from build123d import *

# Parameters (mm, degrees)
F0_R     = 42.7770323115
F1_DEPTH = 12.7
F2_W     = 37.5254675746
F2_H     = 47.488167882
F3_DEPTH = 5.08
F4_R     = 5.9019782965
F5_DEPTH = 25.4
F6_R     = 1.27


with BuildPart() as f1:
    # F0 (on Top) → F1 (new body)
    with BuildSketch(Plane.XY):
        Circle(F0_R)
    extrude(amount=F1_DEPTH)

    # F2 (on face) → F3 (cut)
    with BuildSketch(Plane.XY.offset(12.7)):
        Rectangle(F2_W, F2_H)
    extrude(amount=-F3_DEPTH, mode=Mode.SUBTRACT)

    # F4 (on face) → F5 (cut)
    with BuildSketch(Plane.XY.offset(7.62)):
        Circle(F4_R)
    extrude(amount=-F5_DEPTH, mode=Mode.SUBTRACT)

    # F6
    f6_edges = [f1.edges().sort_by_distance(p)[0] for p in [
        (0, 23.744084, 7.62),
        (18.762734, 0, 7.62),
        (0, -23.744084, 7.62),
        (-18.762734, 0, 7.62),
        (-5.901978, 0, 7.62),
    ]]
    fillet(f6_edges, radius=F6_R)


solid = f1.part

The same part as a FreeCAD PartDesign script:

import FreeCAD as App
import Part
import Sketcher

V = App.Vector
Q = App.Units.Quantity


def edges_at(feature, points):
    """Names of the edges that pass closest to the given points."""
    edges = feature.Shape.Edges
    near = lambda p: min(range(len(edges)), key=lambda i: edges[i].distToShape(Part.Vertex(*p))[0])
    return sorted({f"Edge{near(p) + 1}" for p in points})


def add_polygon(sketch, points):
    """Adds a closed chain of lines whose ends are joined by coincident constraints."""
    first, n = sketch.GeometryCount, len(points)
    for a, b in zip(points, points[1:] + points[:1]):
        sketch.addGeometry(Part.LineSegment(App.Vector(*a, 0), App.Vector(*b, 0)), False)
    for i in range(n):
        sketch.addConstraint(Sketcher.Constraint("Coincident", first + i, 2, first + (i + 1) % n, 1))

doc = App.newDocument("Part")
params = doc.addObject("Spreadsheet::Sheet", "Params")
for row, (alias, value) in enumerate([
    ("pad1_length", "0.5 in"),
    ("pocket1_length", "0.2 in"),
    ("pocket2_length", "1 in"),
    ("fillet_radius", "0.05 in"),
], start=1):
    params.set(f"A{row}", alias)
    params.set(f"B{row}", "=" + value)
    params.setAlias(f"B{row}", alias)

body = doc.addObject("PartDesign::Body", "Body")

sketch1 = body.newObject("Sketcher::SketchObject", "Sketch")
sketch1.AttachmentSupport = (doc.getObject("XY_Plane"), [""])
sketch1.MapMode = "FlatFace"
sketch1.addGeometry(Part.Circle(V(0, 0, 0), V(0, 0, 1), 43), False)
sketch1.addConstraint([
    Sketcher.Constraint("Coincident", 0, 3, -1, 1),
    Sketcher.Constraint("Diameter", 0, Q("85.554065 mm")),
])
pad1 = body.newObject("PartDesign::Pad", "Pad")
pad1.Profile = sketch1
pad1.setExpression("Length", "Params.pad1_length")

sketch2 = body.newObject("Sketcher::SketchObject", "Sketch001")
sketch2.AttachmentSupport = (doc.getObject("XY_Plane"), [""])
sketch2.MapMode = "FlatFace"
sketch2.AttachmentOffset = App.Placement(V(0, 0, 0.5 * 25.4), App.Rotation())
add_polygon(sketch2, [(-19, 24), (-19, -24), (19, -24), (19, 24)])
sketch2.addConstraint([
    Sketcher.Constraint("Vertical", 0),
    Sketcher.Constraint("Horizontal", 1),
    Sketcher.Constraint("Vertical", 2),
    Sketcher.Constraint("Horizontal", 3),
    Sketcher.Constraint("Symmetric", 0, 2, 2, 2, -1, 1),
    Sketcher.Constraint("DistanceX", 1, 1, 1, 2, Q("37.525468 mm")),
    Sketcher.Constraint("DistanceY", 0, 2, 0, 1, Q("47.488168 mm")),
])
pocket1 = body.newObject("PartDesign::Pocket", "Pocket")
pocket1.Profile = sketch2
pocket1.setExpression("Length", "Params.pocket1_length")

sketch3 = body.newObject("Sketcher::SketchObject", "Sketch002")
sketch3.AttachmentSupport = (doc.getObject("XY_Plane"), [""])
sketch3.MapMode = "FlatFace"
sketch3.AttachmentOffset = App.Placement(V(0, 0, 0.3 * 25.4), App.Rotation())
sketch3.addGeometry(Part.Circle(V(0, 0, 0), V(0, 0, 1), 6), False)
sketch3.addConstraint([
    Sketcher.Constraint("Coincident", 0, 3, -1, 1),
    Sketcher.Constraint("Diameter", 0, Q("11.803957 mm")),
])
pocket2 = body.newObject("PartDesign::Pocket", "Pocket001")
pocket2.Profile = sketch3
pocket2.setExpression("Length", "Params.pocket2_length")
doc.recompute()

fillet = body.newObject("PartDesign::Fillet", "Fillet")
fillet.Base = (pocket2, edges_at(pocket2, [
    (0, 23.744, 7.62),
    (18.763, 0, 7.62),
    (0, -23.744, 7.62),
    (-18.763, 0, 7.62),
    (-5.902, 0, 7.62),
]))
fillet.setExpression("Radius", "Params.fillet_radius")

doc.recompute()
